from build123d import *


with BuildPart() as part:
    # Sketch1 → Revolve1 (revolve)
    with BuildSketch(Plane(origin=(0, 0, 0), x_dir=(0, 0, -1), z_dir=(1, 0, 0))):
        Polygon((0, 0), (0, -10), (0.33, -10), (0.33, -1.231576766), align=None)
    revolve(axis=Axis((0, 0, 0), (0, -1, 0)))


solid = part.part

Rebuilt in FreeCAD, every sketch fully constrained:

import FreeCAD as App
import Part
import Sketcher
Q = App.Units.Quantity

doc = App.newDocument("Part")
body = doc.addObject("PartDesign::Body", "Body")

sketch1 = body.newObject("Sketcher::SketchObject", "Sketch")
sketch1.AttachmentSupport = (doc.getObject("YZ_Plane"), [""])
sketch1.MapMode = "FlatFace"
sketch1.addGeometry([
    Part.LineSegment(App.Vector(0, 0, 0), App.Vector(-10, 0, 0)),
    Part.LineSegment(App.Vector(-10, 0, 0), App.Vector(-10, -0.33, 0)),
    Part.LineSegment(App.Vector(-10, -0.33, 0), App.Vector(-1.23, -0.33, 0)),
    Part.LineSegment(App.Vector(-1.23, -0.33, 0), App.Vector(0, 0, 0)),
], False)
sketch1.addConstraint([
    Sketcher.Constraint("Coincident", 0, 2, 1, 1),
    Sketcher.Constraint("Coincident", 1, 2, 2, 1),
    Sketcher.Constraint("Coincident", 2, 2, 3, 1),
    Sketcher.Constraint("Coincident", 3, 2, 0, 1),
    Sketcher.Constraint("Horizontal", 0),
    Sketcher.Constraint("Vertical", 1),
    Sketcher.Constraint("Horizontal", 2),
    Sketcher.Constraint("Coincident", 3, 2, -1, 1),
    Sketcher.Constraint("DistanceX", 0, 2, 0, 1, 10.0),
    Sketcher.Constraint("Angle", 3, Q("15 deg")),
    Sketcher.Constraint("DistanceY", 1, 2, 1, 1, 0.33),
])
revolution = body.newObject("PartDesign::Revolution", "Revolution")
revolution.Profile = sketch1
revolution.ReferenceAxis = (sketch1, ["H_Axis"])
revolution.Angle = 360

doc.recompute()
